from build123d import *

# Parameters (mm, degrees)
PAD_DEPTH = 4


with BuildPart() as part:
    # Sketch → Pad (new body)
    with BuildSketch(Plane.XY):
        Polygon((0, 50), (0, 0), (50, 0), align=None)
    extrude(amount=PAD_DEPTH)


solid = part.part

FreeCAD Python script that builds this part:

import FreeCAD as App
import Part
import Sketcher

V = App.Vector

doc = App.newDocument("Part")
body = doc.addObject("PartDesign::Body", "Body")

# Sketch on XY plane
sketch1 = body.newObject("Sketcher::SketchObject", "Sketch")
sketch1.AttachmentSupport = (doc.getObject("XY_Plane"), [""])
sketch1.MapMode = "FlatFace"
sketch1.addGeometry([
    Part.LineSegment(V(0, 50, 0), V(0, 0, 0)),
    Part.LineSegment(V(0, 0, 0), V(50, 0, 0)),
    Part.LineSegment(V(50, 0, 0), V(0, 50, 0)),
], False)
sketch1.addConstraint([
    Sketcher.Constraint("Coincident", 0, 2, 1, 1),
    Sketcher.Constraint("Coincident", 1, 2, 2, 1),
    Sketcher.Constraint("Coincident", 2, 2, 0, 1),
    Sketcher.Constraint("Vertical", 0),
    Sketcher.Constraint("Horizontal", 1),
    Sketcher.Constraint("Coincident", 0, 2, -1, 1),
    Sketcher.Constraint("Equal", 1, 0),
    Sketcher.Constraint("DistanceX", 1, 1, 1, 2, 50.0),
])
pad1 = body.newObject("PartDesign::Pad", "Pad")
pad1.Profile = sketch1
pad1.Length = 4

doc.recompute()
